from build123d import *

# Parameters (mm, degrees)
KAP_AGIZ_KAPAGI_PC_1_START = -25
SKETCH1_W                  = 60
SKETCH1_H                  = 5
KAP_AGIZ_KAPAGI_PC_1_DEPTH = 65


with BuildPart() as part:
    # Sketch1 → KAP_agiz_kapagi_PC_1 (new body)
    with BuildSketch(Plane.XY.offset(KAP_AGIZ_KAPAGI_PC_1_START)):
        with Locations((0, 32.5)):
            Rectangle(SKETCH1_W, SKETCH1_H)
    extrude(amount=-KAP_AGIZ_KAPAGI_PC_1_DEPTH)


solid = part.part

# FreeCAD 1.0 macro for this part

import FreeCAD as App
import Part
import Sketcher
from FreeCAD import Vector
Q = App.Units.Quantity

doc = App.newDocument("Part")
body = doc.addObject("PartDesign::Body", "Body")

# Sketch on XY plane
sketch1 = body.newObject("Sketcher::SketchObject", "Sketch")
sketch1.AttachmentSupport = (doc.getObject("XY_Plane"), [""])
sketch1.MapMode = "FlatFace"
sketch1.AttachmentOffset = App.Placement(Vector(0, 0, -25), App.Rotation())
sketch1.addGeometry([
    Part.LineSegment(Vector(-30, 35, 0), Vector(-30, 30, 0)),
    Part.LineSegment(Vector(-30, 30, 0), Vector(30, 30, 0)),
    Part.LineSegment(Vector(30, 30, 0), Vector(30, 35, 0)),
    Part.LineSegment(Vector(30, 35, 0), Vector(-30, 35, 0)),
], False)
sketch1.addConstraint([
    Sketcher.Constraint("Coincident", 0, 2, 1, 1),
    Sketcher.Constraint("Coincident", 1, 2, 2, 1),
    Sketcher.Constraint("Coincident", 2, 2, 3, 1),
    Sketcher.Constraint("Coincident", 3, 2, 0, 1),
    Sketcher.Constraint("Vertical", 0),
    Sketcher.Constraint("Horizontal", 1),
    Sketcher.Constraint("Vertical", 2),
    Sketcher.Constraint("Horizontal", 3),
    Sketcher.Constraint("DistanceX", 1, 1, 1, 2, Q("60 mm")),
    Sketcher.Constraint("DistanceY", 0, 2, 0, 1, Q("5 mm")),
    Sketcher.Constraint("DistanceX", 0, 2, -1, 1, Q("30 mm")),
    Sketcher.Constraint("DistanceY", -1, 1, 0, 2, Q("30 mm")),
])
pad1 = body.newObject("PartDesign::Pad", "Pad")
pad1.Profile = sketch1
pad1.Length = 65
pad1.Reversed = True

doc.recompute()
